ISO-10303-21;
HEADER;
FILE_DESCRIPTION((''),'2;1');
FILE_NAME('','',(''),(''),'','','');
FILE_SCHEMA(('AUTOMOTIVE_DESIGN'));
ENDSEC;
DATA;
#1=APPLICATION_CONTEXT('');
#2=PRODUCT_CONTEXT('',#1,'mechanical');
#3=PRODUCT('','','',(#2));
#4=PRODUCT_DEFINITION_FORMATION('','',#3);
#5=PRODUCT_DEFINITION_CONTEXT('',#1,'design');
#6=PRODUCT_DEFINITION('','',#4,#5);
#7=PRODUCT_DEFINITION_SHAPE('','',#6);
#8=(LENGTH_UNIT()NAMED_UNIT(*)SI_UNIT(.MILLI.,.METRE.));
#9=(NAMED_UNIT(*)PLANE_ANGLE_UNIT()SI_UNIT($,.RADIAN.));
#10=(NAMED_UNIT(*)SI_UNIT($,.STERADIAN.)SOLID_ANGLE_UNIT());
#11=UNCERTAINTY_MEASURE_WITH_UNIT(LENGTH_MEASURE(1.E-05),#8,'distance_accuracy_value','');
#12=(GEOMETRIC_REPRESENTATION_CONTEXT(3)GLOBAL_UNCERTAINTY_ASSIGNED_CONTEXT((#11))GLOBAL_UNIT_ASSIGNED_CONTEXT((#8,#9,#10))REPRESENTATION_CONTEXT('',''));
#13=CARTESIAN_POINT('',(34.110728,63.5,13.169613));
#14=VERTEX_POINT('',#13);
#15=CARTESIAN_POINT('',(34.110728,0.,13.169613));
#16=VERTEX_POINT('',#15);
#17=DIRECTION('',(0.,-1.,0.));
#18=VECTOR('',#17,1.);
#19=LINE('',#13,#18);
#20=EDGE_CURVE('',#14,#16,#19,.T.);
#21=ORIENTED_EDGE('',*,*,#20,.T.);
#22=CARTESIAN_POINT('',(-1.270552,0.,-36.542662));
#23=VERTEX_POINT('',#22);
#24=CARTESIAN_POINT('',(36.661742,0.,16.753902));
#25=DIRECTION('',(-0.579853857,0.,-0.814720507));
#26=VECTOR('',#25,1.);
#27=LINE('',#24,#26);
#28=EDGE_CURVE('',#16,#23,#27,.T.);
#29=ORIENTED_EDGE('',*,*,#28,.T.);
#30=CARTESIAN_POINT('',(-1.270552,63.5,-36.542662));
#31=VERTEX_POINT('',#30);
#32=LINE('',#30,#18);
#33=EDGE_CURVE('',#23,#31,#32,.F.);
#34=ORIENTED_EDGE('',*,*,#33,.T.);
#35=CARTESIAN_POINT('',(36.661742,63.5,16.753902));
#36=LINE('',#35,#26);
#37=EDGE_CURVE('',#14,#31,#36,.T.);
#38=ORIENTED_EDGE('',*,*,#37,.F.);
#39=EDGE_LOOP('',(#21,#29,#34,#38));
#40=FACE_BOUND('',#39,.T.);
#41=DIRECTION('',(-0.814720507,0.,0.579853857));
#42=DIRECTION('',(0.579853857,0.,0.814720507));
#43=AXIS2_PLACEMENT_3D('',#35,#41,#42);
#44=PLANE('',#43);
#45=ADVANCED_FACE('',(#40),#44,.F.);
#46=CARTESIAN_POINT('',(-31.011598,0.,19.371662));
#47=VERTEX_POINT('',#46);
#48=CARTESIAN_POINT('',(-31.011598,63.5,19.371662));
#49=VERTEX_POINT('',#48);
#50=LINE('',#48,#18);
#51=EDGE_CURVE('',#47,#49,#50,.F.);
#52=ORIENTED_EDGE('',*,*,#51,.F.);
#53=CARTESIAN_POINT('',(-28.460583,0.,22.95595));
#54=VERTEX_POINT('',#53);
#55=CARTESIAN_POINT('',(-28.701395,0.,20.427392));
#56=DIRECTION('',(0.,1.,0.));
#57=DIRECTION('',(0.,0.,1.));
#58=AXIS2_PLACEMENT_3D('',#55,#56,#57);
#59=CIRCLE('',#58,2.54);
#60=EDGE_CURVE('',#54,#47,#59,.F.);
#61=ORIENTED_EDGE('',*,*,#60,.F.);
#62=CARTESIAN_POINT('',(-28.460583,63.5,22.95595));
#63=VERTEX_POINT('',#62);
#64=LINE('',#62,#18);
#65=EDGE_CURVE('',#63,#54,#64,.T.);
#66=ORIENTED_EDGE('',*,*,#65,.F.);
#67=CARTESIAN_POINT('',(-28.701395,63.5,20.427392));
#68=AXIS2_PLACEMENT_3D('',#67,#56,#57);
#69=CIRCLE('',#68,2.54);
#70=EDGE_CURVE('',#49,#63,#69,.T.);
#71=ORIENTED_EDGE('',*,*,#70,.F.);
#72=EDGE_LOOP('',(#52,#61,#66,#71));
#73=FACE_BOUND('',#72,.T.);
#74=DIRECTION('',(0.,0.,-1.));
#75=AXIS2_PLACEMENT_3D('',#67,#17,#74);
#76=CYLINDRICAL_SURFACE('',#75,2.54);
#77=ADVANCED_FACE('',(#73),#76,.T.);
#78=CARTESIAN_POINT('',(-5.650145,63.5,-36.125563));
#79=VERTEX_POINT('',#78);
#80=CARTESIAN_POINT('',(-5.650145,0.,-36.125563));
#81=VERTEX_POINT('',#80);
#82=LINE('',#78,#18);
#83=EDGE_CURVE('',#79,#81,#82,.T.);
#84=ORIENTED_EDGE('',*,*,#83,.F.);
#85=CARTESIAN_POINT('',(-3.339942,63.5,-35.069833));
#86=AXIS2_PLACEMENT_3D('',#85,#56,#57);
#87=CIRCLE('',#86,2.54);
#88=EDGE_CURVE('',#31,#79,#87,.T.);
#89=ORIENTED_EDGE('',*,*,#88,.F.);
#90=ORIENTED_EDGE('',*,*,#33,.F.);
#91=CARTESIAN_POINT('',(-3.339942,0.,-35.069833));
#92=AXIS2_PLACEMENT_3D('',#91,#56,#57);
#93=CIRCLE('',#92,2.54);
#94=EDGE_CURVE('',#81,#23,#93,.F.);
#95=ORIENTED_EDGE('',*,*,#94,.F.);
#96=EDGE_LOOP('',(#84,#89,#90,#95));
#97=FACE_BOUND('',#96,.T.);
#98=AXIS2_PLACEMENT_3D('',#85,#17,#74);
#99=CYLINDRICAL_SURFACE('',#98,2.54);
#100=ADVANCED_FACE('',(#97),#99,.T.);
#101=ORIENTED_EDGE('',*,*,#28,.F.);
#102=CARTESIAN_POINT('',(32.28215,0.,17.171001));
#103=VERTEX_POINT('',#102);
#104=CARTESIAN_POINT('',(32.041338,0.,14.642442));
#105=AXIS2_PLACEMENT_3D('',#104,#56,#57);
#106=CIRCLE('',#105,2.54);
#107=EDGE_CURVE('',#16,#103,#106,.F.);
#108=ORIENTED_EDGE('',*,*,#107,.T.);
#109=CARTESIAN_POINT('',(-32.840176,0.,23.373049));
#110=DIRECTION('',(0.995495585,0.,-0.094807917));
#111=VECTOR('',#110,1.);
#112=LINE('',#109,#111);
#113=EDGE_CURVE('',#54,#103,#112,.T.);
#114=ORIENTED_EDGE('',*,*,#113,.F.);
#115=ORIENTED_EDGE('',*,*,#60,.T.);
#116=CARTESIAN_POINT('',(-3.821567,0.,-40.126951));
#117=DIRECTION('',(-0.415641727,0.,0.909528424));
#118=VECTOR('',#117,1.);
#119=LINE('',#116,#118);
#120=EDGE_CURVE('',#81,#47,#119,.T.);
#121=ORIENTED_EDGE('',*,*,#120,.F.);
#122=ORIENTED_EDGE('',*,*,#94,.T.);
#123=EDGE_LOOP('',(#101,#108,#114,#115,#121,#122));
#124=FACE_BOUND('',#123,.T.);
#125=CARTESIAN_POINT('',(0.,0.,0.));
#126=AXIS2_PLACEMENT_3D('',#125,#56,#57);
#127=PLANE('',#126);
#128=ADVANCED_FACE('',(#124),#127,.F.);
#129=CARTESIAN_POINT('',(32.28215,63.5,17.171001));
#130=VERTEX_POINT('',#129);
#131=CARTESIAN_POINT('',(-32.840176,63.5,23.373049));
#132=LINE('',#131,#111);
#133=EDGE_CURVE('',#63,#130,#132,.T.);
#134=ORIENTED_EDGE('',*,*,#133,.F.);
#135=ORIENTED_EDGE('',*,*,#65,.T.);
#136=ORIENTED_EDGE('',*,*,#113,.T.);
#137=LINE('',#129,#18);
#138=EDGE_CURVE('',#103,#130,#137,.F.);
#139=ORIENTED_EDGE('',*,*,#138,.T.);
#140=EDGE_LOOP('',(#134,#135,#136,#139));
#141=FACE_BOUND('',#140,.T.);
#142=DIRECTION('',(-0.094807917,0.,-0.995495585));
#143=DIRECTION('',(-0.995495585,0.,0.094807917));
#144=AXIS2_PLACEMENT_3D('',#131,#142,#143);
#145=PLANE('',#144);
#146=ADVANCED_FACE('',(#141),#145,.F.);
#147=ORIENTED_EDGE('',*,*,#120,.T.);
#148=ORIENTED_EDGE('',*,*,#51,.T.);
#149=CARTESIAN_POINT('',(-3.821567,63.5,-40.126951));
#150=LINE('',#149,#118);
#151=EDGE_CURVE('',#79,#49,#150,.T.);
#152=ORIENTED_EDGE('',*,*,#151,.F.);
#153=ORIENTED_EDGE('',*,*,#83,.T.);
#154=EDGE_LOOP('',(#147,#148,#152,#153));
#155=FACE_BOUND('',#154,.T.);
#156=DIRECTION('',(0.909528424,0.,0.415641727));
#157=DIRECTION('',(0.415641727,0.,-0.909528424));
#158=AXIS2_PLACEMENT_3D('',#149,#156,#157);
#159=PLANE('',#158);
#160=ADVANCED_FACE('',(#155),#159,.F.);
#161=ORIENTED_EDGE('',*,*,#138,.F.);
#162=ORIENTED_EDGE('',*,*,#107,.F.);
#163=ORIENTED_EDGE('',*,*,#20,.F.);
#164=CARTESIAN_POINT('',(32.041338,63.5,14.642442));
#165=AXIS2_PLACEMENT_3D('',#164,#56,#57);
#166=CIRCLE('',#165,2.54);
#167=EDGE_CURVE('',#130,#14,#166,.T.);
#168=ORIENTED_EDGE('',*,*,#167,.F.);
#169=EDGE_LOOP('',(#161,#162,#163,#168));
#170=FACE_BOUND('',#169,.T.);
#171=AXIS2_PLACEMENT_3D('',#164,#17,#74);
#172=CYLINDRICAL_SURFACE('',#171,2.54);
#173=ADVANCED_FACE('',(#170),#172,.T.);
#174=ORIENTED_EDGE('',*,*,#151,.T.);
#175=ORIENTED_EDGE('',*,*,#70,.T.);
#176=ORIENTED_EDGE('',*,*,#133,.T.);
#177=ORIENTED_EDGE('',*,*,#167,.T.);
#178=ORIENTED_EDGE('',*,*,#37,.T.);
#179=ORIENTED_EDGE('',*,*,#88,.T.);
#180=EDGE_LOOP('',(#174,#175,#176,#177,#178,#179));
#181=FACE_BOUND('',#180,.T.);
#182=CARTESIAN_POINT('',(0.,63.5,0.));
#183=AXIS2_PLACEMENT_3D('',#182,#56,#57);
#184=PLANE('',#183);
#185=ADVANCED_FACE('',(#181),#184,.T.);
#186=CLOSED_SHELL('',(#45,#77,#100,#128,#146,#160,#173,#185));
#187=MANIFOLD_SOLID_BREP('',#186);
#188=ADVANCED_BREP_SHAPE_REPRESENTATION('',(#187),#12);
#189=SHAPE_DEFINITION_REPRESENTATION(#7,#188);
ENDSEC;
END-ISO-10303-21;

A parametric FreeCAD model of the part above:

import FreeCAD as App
import Part
import Sketcher

V = App.Vector
Q = App.Units.Quantity


def edges_at(feature, points):
    """Names of the edges that pass closest to the given points."""
    edges = feature.Shape.Edges
    near = lambda p: min(range(len(edges)), key=lambda i: edges[i].distToShape(Part.Vertex(*p))[0])
    return sorted({f"Edge{near(p) + 1}" for p in points})

doc = App.newDocument("Part")
body = doc.addObject("PartDesign::Body", "Body")

# Sketch on XZ plane
sketch1 = body.newObject("Sketcher::SketchObject", "Sketch")
sketch1.AttachmentSupport = (doc.getObject("XZ_Plane"), [""])
sketch1.MapMode = "FlatFace"
sketch1.addGeometry([
    Part.LineSegment(V(37, 17, 0), V(-4, -40, 0)),
    Part.LineSegment(V(-4, -40, 0), V(-33, 23, 0)),
    Part.LineSegment(V(-33, 23, 0), V(37, 17, 0)),
], False)
sketch1.addConstraint([
    Sketcher.Constraint("Coincident", 0, 2, 1, 1),
    Sketcher.Constraint("Coincident", 1, 2, 2, 1),
    Sketcher.Constraint("Coincident", 2, 2, 0, 1),
    Sketcher.Constraint("Equal", 0, 1),
    Sketcher.Constraint("Equal", 1, 2),
    Sketcher.Constraint("DistanceY", 0, 2, 1, 2, Q("2.5 in")),
    Sketcher.Constraint("Distance", 0, 69.8164),
    Sketcher.Constraint("DistanceY", -1, 1, 2, 2, 16.753902),
    Sketcher.Constraint("DistanceX", 0, 2, -1, 1, 3.821567),
])
pad1 = body.newObject("PartDesign::Pad", "Pad")
pad1.Profile = sketch1
pad1.Length = Q("2.5 in")
pad1.Reversed = True
doc.recompute()

fillet = body.newObject("PartDesign::Fillet", "Fillet")
fillet.Base = (pad1, edges_at(pad1, [(-32.84, 31.75, 23.373), (-3.822, 31.75, -40.127), (36.662, 31.75, 16.754)]))
fillet.Radius = Q("0.1 in")

doc.recompute()
